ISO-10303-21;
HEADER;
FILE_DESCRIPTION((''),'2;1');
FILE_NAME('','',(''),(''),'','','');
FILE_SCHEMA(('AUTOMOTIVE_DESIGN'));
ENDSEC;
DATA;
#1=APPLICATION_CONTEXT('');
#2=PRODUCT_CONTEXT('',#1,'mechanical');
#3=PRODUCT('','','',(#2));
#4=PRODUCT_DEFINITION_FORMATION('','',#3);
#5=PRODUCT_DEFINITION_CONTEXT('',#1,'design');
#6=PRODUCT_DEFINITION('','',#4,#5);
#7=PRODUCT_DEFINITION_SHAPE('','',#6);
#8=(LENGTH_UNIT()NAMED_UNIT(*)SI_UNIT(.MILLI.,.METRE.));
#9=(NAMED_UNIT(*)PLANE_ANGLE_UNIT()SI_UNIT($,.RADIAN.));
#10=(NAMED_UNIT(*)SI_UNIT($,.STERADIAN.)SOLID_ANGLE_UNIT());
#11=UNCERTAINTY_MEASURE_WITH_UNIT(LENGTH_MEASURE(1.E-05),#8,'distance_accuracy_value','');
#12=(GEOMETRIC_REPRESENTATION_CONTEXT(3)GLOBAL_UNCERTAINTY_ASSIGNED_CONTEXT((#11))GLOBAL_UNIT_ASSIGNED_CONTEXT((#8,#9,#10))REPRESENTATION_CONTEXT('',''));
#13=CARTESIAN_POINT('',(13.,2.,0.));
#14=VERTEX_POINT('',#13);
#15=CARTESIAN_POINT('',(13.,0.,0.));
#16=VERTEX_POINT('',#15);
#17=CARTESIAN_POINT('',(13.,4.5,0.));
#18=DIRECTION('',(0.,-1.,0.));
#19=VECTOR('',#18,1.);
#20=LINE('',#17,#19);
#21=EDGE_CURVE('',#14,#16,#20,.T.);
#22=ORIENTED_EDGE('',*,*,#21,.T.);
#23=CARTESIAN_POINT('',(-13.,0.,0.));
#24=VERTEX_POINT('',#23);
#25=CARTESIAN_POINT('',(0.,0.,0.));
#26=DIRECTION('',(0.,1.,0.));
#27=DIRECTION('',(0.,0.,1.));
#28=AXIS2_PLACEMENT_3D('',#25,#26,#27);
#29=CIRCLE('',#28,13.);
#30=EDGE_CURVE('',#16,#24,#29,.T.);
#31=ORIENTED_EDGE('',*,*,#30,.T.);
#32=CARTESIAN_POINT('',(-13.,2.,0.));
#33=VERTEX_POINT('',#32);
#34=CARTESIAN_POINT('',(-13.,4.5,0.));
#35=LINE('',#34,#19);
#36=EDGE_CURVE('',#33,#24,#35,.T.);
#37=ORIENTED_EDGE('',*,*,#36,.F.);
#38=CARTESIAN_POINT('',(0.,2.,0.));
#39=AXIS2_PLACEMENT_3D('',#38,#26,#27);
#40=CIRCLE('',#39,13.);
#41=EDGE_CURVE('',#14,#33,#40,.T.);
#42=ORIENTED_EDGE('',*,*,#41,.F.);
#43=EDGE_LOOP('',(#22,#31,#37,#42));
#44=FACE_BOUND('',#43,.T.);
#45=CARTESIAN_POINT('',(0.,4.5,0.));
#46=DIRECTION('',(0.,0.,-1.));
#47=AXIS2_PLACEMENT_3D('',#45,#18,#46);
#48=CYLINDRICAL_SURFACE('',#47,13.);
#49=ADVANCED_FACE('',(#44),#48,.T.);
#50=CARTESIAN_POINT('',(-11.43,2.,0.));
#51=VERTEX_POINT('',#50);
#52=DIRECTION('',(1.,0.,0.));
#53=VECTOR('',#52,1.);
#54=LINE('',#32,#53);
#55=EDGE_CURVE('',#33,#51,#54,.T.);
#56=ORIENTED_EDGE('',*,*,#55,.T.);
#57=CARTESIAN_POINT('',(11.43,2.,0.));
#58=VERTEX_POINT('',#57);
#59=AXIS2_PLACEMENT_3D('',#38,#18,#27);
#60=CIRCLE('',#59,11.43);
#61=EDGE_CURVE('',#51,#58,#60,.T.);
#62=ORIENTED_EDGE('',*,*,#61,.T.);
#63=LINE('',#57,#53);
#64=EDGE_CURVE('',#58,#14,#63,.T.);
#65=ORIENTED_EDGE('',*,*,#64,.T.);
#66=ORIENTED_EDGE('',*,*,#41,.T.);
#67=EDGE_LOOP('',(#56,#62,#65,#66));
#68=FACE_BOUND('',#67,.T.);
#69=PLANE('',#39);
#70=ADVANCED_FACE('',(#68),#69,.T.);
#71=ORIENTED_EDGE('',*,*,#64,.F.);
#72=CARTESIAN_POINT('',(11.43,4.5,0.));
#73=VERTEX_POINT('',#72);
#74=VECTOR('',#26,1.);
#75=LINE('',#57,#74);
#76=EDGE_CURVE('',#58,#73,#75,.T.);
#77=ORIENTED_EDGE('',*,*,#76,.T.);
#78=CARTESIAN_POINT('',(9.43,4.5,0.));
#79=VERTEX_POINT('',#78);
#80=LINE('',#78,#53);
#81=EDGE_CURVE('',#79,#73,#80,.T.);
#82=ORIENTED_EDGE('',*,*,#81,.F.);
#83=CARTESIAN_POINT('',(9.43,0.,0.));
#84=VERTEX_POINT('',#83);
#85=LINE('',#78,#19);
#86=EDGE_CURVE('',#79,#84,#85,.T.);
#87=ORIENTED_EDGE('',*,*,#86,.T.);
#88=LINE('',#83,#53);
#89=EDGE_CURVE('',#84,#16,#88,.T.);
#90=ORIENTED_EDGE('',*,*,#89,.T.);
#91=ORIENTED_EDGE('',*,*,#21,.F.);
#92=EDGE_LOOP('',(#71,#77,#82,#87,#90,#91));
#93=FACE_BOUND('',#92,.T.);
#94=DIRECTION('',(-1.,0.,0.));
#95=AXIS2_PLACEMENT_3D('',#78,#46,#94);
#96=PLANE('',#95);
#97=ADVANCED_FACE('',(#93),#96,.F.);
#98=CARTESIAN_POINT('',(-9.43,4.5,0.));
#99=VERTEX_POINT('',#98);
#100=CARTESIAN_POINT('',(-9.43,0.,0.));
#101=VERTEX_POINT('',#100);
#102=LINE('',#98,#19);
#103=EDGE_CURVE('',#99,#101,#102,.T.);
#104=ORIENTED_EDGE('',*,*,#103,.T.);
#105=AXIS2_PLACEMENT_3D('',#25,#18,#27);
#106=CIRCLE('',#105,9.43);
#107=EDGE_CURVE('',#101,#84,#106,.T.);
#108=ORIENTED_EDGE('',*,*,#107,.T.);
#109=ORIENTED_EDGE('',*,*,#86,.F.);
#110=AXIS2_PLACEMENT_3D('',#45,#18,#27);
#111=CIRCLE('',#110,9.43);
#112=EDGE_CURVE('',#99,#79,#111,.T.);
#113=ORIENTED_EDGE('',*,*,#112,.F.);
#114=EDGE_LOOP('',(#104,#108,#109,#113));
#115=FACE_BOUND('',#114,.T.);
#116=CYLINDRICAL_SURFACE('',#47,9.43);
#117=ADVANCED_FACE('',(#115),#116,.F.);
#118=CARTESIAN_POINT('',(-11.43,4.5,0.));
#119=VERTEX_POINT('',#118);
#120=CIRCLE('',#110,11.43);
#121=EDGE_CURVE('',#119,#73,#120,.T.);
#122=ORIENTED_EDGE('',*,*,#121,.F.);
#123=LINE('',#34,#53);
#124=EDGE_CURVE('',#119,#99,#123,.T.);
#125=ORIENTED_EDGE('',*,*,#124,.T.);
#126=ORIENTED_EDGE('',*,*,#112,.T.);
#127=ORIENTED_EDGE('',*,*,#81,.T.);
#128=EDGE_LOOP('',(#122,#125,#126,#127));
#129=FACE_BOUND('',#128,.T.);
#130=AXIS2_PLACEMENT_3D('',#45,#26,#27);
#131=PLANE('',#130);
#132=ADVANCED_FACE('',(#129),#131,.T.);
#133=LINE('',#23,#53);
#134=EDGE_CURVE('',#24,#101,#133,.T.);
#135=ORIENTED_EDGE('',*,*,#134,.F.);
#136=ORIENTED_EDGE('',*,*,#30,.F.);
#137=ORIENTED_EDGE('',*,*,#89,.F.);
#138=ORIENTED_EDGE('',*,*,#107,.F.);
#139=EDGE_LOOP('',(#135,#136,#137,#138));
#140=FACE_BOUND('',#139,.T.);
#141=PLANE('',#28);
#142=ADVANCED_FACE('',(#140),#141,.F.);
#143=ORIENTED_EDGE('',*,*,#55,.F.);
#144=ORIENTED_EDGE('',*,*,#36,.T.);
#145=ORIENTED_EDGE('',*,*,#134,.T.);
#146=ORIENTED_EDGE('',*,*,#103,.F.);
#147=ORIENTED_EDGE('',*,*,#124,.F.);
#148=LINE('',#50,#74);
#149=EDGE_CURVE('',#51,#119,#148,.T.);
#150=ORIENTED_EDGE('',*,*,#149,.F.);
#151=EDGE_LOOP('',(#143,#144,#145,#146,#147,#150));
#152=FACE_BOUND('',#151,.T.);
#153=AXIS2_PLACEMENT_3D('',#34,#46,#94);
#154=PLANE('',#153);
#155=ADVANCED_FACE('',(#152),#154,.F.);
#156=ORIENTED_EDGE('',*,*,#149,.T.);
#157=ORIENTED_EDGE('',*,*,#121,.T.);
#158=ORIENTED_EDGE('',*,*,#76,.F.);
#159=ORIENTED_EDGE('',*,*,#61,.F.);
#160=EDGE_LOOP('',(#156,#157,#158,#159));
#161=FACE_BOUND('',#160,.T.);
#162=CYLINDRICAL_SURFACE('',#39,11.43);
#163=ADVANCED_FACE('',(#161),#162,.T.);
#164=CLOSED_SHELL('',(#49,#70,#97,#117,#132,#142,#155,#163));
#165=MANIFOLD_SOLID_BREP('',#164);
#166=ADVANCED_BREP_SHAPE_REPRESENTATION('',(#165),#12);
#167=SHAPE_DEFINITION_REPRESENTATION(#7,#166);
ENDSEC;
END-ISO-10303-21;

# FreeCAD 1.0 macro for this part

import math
import FreeCAD as App
import Part
import Sketcher
from FreeCAD import Vector

doc = App.newDocument("Part")
body = doc.addObject("PartDesign::Body", "Body")

# Sketch on XZ plane
sketch1 = doc.addObject("Sketcher::SketchObject", "Sketch")
body.addObject(sketch1)
sketch1.AttachmentSupport = (doc.XZ_Plane, [""])
sketch1.MapMode = "FlatFace"
sketch1.addGeometry([
    Part.LineSegment(Vector(-13, 0, 0), Vector(-9.4, 0, 0)),
    Part.ArcOfCircle(Part.Circle(Vector(0, 0, 0), Vector(0, 0, 1), 9.4), math.radians(180), math.radians(360)),
    Part.LineSegment(Vector(9.4, 0, 0), Vector(13, 0, 0)),
    Part.ArcOfCircle(Part.Circle(Vector(0, 0, 0), Vector(0, 0, 1), 13), math.radians(180), math.radians(360)),
], False)
sketch1.addConstraint([
    Sketcher.Constraint("Coincident", 0, 2, 1, 1),
    Sketcher.Constraint("Coincident", 1, 2, 2, 1),
    Sketcher.Constraint("Coincident", 2, 2, 3, 2),
    Sketcher.Constraint("Coincident", 3, 1, 0, 1),
    Sketcher.Constraint("Horizontal", 0),
    Sketcher.Constraint("Horizontal", 2),
    Sketcher.Constraint("Coincident", 1, 3, -1, 1),
    Sketcher.Constraint("Coincident", 3, 3, -1, 1),
    Sketcher.Constraint("PointOnObject", 0, 2, -1),
    Sketcher.Constraint("PointOnObject", 1, 2, -1),
    Sketcher.Constraint("Radius", 3, 13.0),
    Sketcher.Constraint("Radius", 1, 9.43),
])
pad1 = doc.addObject("PartDesign::Pad", "Pad")
body.addObject(pad1)
pad1.Profile = sketch1
pad1.Length = 4.5
pad1.Reversed = True

# Sketch on XZ plane
sketch2 = doc.addObject("Sketcher::SketchObject", "Sketch001")
body.addObject(sketch2)
sketch2.AttachmentSupport = (doc.XZ_Plane, [""])
sketch2.MapMode = "FlatFace"
sketch2.AttachmentOffset = App.Placement(Vector(0, 0, -4.5), App.Rotation())
sketch2.addGeometry([
    Part.LineSegment(Vector(-13, 0, 0), Vector(-11.4, 0, 0)),
    Part.ArcOfCircle(Part.Circle(Vector(0, 0, 0), Vector(0, 0, 1), 11.4), math.radians(180), math.radians(360)),
    Part.LineSegment(Vector(11.4, 0, 0), Vector(13, 0, 0)),
    Part.ArcOfCircle(Part.Circle(Vector(0, 0, 0), Vector(0, 0, 1), 13), math.radians(180), math.radians(360)),
], False)
sketch2.addConstraint([
    Sketcher.Constraint("Coincident", 0, 2, 1, 1),
    Sketcher.Constraint("Coincident", 1, 2, 2, 1),
    Sketcher.Constraint("Coincident", 2, 2, 3, 2),
    Sketcher.Constraint("Coincident", 3, 1, 0, 1),
    Sketcher.Constraint("Horizontal", 0),
    Sketcher.Constraint("Horizontal", 2),
    Sketcher.Constraint("Coincident", 1, 3, -1, 1),
    Sketcher.Constraint("Coincident", 3, 3, -1, 1),
    Sketcher.Constraint("PointOnObject", 0, 2, -1),
    Sketcher.Constraint("PointOnObject", 1, 2, -1),
    Sketcher.Constraint("Radius", 3, 13.0),
    Sketcher.Constraint("Radius", 1, 11.43),
])
pocket1 = doc.addObject("PartDesign::Pocket", "Pocket")
body.addObject(pocket1)
pocket1.Profile = sketch2
pocket1.Length = 2.5
pocket1.Reversed = True

doc.recompute()
